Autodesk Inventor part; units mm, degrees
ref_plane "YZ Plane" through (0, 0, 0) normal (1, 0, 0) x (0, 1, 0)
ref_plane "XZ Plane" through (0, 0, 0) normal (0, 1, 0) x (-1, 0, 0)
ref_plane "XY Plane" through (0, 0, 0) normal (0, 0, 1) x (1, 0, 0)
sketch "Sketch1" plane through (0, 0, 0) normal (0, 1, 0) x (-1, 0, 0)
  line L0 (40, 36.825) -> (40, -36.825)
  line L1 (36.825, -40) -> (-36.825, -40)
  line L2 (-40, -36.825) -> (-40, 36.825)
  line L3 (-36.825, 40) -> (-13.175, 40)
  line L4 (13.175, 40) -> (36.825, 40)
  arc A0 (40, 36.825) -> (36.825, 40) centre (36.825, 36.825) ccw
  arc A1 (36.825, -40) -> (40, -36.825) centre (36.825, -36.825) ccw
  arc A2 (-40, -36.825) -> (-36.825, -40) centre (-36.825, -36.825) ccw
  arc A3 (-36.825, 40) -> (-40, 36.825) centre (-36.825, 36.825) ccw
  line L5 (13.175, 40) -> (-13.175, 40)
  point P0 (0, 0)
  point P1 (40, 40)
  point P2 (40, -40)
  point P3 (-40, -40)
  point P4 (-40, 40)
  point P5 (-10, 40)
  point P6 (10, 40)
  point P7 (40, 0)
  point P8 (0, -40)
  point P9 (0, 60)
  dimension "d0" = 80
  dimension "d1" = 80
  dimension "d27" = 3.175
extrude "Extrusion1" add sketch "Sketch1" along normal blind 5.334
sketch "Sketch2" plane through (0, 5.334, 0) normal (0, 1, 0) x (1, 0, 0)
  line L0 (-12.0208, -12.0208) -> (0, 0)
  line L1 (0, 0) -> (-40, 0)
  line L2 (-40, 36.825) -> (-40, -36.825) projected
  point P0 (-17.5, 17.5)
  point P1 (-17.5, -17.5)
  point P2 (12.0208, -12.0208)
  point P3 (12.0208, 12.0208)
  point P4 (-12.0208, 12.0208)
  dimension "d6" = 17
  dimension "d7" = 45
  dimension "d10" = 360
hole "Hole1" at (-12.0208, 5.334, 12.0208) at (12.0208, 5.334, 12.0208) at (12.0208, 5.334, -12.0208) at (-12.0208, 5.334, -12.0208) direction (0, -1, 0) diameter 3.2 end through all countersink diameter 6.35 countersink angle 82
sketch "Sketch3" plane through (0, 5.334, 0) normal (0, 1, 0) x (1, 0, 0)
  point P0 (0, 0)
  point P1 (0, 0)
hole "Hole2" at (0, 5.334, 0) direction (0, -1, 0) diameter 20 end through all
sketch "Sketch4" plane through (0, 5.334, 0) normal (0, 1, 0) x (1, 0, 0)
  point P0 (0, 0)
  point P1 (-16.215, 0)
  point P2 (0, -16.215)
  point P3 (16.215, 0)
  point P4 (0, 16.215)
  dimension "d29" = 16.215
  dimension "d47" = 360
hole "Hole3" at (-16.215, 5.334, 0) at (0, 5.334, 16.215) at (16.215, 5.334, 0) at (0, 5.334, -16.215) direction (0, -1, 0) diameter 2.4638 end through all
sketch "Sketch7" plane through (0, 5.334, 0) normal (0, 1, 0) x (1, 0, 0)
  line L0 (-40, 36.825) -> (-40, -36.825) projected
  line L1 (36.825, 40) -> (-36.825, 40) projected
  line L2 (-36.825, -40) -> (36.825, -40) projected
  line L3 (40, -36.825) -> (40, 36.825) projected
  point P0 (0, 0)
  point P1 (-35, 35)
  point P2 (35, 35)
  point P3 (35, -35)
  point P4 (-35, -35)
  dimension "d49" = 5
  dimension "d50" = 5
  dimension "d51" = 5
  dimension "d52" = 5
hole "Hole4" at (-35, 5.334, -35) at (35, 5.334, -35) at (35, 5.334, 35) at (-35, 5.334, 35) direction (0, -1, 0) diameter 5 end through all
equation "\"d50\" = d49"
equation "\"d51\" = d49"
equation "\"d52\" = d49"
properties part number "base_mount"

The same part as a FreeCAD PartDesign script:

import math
import FreeCAD as App
import Part
import Sketcher

V = App.Vector
Q = App.Units.Quantity

doc = App.newDocument("Part")
body = doc.addObject("PartDesign::Body", "Body")

sketch1 = body.newObject("Sketcher::SketchObject", "Sketch")
sketch1.AttachmentSupport = (doc.getObject("XZ_Plane"), [""])
sketch1.MapMode = "FlatFace"
sketch1.addGeometry(Part.LineSegment(V(-40, -36.825, 0), V(-40, 36.825, 0)), False)
sketch1.addGeometry(Part.ArcOfCircle(Part.Circle(V(-36.825, 36.825, 0), V(0, 0, 1), 3.175), math.radians(90), math.radians(180)), False)
sketch1.addGeometry(Part.LineSegment(V(-36.825, 40, 0), V(36.825, 40, 0)), False)
sketch1.addGeometry(Part.ArcOfCircle(Part.Circle(V(36.825, 36.825, 0), V(0, 0, 1), 3.175), math.radians(0), math.radians(90)), False)
sketch1.addGeometry(Part.LineSegment(V(40, 36.825, 0), V(40, -36.825, 0)), False)
sketch1.addGeometry(Part.ArcOfCircle(Part.Circle(V(36.825, -36.825, 0), V(0, 0, 1), 3.175), math.radians(-90), math.radians(0)), False)
sketch1.addGeometry(Part.LineSegment(V(36.825, -40, 0), V(-36.825, -40, 0)), False)
sketch1.addGeometry(Part.ArcOfCircle(Part.Circle(V(-36.825, -36.825, 0), V(0, 0, 1), 3.175), math.radians(180), math.radians(270)), False)
sketch1.addConstraint(Sketcher.Constraint("Tangent", 0, 2, 1, 2))
sketch1.addConstraint(Sketcher.Constraint("Tangent", 1, 1, 2, 1))
sketch1.addConstraint(Sketcher.Constraint("Tangent", 2, 2, 3, 2))
sketch1.addConstraint(Sketcher.Constraint("Tangent", 3, 1, 4, 1))
sketch1.addConstraint(Sketcher.Constraint("Tangent", 4, 2, 5, 2))
sketch1.addConstraint(Sketcher.Constraint("Tangent", 5, 1, 6, 1))
sketch1.addConstraint(Sketcher.Constraint("Tangent", 6, 2, 7, 2))
sketch1.addConstraint(Sketcher.Constraint("Tangent", 7, 1, 0, 1))
sketch1.addConstraint(Sketcher.Constraint("Vertical", 0))
sketch1.addConstraint(Sketcher.Constraint("Horizontal", 2))
sketch1.addConstraint(Sketcher.Constraint("Vertical", 4))
sketch1.addConstraint(Sketcher.Constraint("Horizontal", 6))
sketch1.addConstraint(Sketcher.Constraint("Equal", 1, 3))
sketch1.addConstraint(Sketcher.Constraint("Equal", 3, 5))
sketch1.addConstraint(Sketcher.Constraint("Equal", 5, 7))
sketch1.addConstraint(Sketcher.Constraint("Symmetric", 1, 3, 5, 3, -1, 1))
sketch1.addConstraint(Sketcher.Constraint("Equal", 6, 0))
sketch1.addConstraint(Sketcher.Constraint("Radius", 1, Q("0.125 in")))
sketch1.addConstraint(Sketcher.Constraint("DistanceX", 2, 1, 2, 2, Q("2.8996 in")))
pad1 = body.newObject("PartDesign::Pad", "Pad")
pad1.Profile = sketch1
pad1.Length = Q("0.21 in")
pad1.Reversed = True

sketch2 = body.newObject("Sketcher::SketchObject", "Sketch001")
sketch2.AttachmentSupport = (doc.getObject("XZ_Plane"), [""])
sketch2.MapMode = "FlatFace"
sketch2.AttachmentOffset = App.Placement(V(0, 0, -0.21 * 25.4), App.Rotation())
sketch2.addGeometry(Part.Circle(V(-12.0208, 12.0208, 0), V(0, 0, 1), 1.6), False)
sketch2.addGeometry(Part.Circle(V(12.0208, 12.0208, 0), V(0, 0, 1), 1.6), False)
sketch2.addGeometry(Part.Circle(V(12.0208, -12.0208, 0), V(0, 0, 1), 1.6), False)
sketch2.addGeometry(Part.Circle(V(-12.0208, -12.0208, 0), V(0, 0, 1), 1.6), False)
sketch2.addConstraint(Sketcher.Constraint("Equal", 0, 1))
sketch2.addConstraint(Sketcher.Constraint("Equal", 1, 2))
sketch2.addConstraint(Sketcher.Constraint("Equal", 2, 3))
sketch2.addConstraint(Sketcher.Constraint("Symmetric", 0, 3, 2, 3, -1, 1))
sketch2.addConstraint(Sketcher.Constraint("Symmetric", 1, 3, 3, 3, -1, 1))
sketch2.addConstraint(Sketcher.Constraint("Symmetric", 0, 3, 1, 3, -2))
sketch2.addConstraint(Sketcher.Constraint("Diameter", 0, 3.2))
sketch2.addConstraint(Sketcher.Constraint("DistanceX", 0, 3, -1, 1, 12.0208))
sketch2.addConstraint(Sketcher.Constraint("DistanceY", -1, 1, 0, 3, 12.0208))
doc.recompute()
hole = body.newObject("PartDesign::Hole", "Hole")
hole.Profile = sketch2
hole.ThreadType = "None"
hole.Diameter = 3.2
hole.DepthType = "ThroughAll"
hole.HoleCutType = "Countersink"
hole.HoleCutDiameter = Q("0.25 in")
hole.HoleCutCountersinkAngle = 82
hole.Reversed = True

sketch3 = body.newObject("Sketcher::SketchObject", "Sketch002")
sketch3.AttachmentSupport = (doc.getObject("XZ_Plane"), [""])
sketch3.MapMode = "FlatFace"
sketch3.AttachmentOffset = App.Placement(V(0, 0, -0.21 * 25.4), App.Rotation())
sketch3.addGeometry(Part.Circle(V(0, 0, 0), V(0, 0, 1), 10), False)
sketch3.addConstraint(Sketcher.Constraint("Coincident", 0, 3, -1, 1))
sketch3.addConstraint(Sketcher.Constraint("Diameter", 0, Q("0.7874 in")))
doc.recompute()
hole2 = body.newObject("PartDesign::Hole", "Hole001")
hole2.Profile = sketch3
hole2.ThreadType = "None"
hole2.Diameter = Q("0.7874016 in")
hole2.DepthType = "ThroughAll"
hole2.Reversed = True

sketch4 = body.newObject("Sketcher::SketchObject", "Sketch003")
sketch4.AttachmentSupport = (doc.getObject("XZ_Plane"), [""])
sketch4.MapMode = "FlatFace"
sketch4.AttachmentOffset = App.Placement(V(0, 0, -0.21 * 25.4), App.Rotation())
sketch4.addGeometry(Part.Circle(V(-16.215, 0, 0), V(0, 0, 1), 1.2319), False)
sketch4.addGeometry(Part.Circle(V(0, 16.215, 0), V(0, 0, 1), 1.2319), False)
sketch4.addGeometry(Part.Circle(V(16.215, 0, 0), V(0, 0, 1), 1.2319), False)
sketch4.addGeometry(Part.Circle(V(0, -16.215, 0), V(0, 0, 1), 1.2319), False)
sketch4.addConstraint(Sketcher.Constraint("Equal", 0, 1))
sketch4.addConstraint(Sketcher.Constraint("Equal", 1, 2))
sketch4.addConstraint(Sketcher.Constraint("Equal", 2, 3))
sketch4.addConstraint(Sketcher.Constraint("Symmetric", 0, 3, 2, 3, -1, 1))
sketch4.addConstraint(Sketcher.Constraint("Symmetric", 1, 3, 3, 3, -1, 1))
sketch4.addConstraint(Sketcher.Constraint("PointOnObject", 0, 3, -1))
sketch4.addConstraint(Sketcher.Constraint("PointOnObject", 1, 3, -2))
sketch4.addConstraint(Sketcher.Constraint("Diameter", 0, Q("0.097 in")))
sketch4.addConstraint(Sketcher.Constraint("DistanceX", 0, 3, -1, 1, 16.215))
sketch4.addConstraint(Sketcher.Constraint("DistanceY", -1, 1, 1, 3, 16.215))
doc.recompute()
hole3 = body.newObject("PartDesign::Hole", "Hole002")
hole3.Profile = sketch4
hole3.ThreadType = "None"
hole3.Diameter = Q("0.097 in")
hole3.DepthType = "ThroughAll"
hole3.Reversed = True

sketch5 = body.newObject("Sketcher::SketchObject", "Sketch004")
sketch5.AttachmentSupport = (doc.getObject("XZ_Plane"), [""])
sketch5.MapMode = "FlatFace"
sketch5.AttachmentOffset = App.Placement(V(0, 0, -0.21 * 25.4), App.Rotation())
sketch5.addGeometry(Part.Circle(V(-35, -35, 0), V(0, 0, 1), 2.5), False)
sketch5.addGeometry(Part.Circle(V(35, -35, 0), V(0, 0, 1), 2.5), False)
sketch5.addGeometry(Part.Circle(V(35, 35, 0), V(0, 0, 1), 2.5), False)
sketch5.addGeometry(Part.Circle(V(-35, 35, 0), V(0, 0, 1), 2.5), False)
sketch5.addConstraint(Sketcher.Constraint("Equal", 0, 1))
sketch5.addConstraint(Sketcher.Constraint("Equal", 1, 2))
sketch5.addConstraint(Sketcher.Constraint("Equal", 2, 3))
sketch5.addConstraint(Sketcher.Constraint("Symmetric", 0, 3, 2, 3, -1, 1))
sketch5.addConstraint(Sketcher.Constraint("Symmetric", 1, 3, 3, 3, -1, 1))
sketch5.addConstraint(Sketcher.Constraint("Symmetric", 0, 3, 1, 3, -2))
sketch5.addConstraint(Sketcher.Constraint("Diameter", 0, 5.0))
sketch5.addConstraint(Sketcher.Constraint("DistanceX", 0, 3, 1, 3, Q("2.7559 in")))
sketch5.addConstraint(Sketcher.Constraint("DistanceY", 1, 3, 2, 3, Q("2.7559 in")))
doc.recompute()
hole4 = body.newObject("PartDesign::Hole", "Hole003")
hole4.Profile = sketch5
hole4.ThreadType = "None"
hole4.Diameter = 5
hole4.DepthType = "ThroughAll"
hole4.Reversed = True

doc.recompute()
